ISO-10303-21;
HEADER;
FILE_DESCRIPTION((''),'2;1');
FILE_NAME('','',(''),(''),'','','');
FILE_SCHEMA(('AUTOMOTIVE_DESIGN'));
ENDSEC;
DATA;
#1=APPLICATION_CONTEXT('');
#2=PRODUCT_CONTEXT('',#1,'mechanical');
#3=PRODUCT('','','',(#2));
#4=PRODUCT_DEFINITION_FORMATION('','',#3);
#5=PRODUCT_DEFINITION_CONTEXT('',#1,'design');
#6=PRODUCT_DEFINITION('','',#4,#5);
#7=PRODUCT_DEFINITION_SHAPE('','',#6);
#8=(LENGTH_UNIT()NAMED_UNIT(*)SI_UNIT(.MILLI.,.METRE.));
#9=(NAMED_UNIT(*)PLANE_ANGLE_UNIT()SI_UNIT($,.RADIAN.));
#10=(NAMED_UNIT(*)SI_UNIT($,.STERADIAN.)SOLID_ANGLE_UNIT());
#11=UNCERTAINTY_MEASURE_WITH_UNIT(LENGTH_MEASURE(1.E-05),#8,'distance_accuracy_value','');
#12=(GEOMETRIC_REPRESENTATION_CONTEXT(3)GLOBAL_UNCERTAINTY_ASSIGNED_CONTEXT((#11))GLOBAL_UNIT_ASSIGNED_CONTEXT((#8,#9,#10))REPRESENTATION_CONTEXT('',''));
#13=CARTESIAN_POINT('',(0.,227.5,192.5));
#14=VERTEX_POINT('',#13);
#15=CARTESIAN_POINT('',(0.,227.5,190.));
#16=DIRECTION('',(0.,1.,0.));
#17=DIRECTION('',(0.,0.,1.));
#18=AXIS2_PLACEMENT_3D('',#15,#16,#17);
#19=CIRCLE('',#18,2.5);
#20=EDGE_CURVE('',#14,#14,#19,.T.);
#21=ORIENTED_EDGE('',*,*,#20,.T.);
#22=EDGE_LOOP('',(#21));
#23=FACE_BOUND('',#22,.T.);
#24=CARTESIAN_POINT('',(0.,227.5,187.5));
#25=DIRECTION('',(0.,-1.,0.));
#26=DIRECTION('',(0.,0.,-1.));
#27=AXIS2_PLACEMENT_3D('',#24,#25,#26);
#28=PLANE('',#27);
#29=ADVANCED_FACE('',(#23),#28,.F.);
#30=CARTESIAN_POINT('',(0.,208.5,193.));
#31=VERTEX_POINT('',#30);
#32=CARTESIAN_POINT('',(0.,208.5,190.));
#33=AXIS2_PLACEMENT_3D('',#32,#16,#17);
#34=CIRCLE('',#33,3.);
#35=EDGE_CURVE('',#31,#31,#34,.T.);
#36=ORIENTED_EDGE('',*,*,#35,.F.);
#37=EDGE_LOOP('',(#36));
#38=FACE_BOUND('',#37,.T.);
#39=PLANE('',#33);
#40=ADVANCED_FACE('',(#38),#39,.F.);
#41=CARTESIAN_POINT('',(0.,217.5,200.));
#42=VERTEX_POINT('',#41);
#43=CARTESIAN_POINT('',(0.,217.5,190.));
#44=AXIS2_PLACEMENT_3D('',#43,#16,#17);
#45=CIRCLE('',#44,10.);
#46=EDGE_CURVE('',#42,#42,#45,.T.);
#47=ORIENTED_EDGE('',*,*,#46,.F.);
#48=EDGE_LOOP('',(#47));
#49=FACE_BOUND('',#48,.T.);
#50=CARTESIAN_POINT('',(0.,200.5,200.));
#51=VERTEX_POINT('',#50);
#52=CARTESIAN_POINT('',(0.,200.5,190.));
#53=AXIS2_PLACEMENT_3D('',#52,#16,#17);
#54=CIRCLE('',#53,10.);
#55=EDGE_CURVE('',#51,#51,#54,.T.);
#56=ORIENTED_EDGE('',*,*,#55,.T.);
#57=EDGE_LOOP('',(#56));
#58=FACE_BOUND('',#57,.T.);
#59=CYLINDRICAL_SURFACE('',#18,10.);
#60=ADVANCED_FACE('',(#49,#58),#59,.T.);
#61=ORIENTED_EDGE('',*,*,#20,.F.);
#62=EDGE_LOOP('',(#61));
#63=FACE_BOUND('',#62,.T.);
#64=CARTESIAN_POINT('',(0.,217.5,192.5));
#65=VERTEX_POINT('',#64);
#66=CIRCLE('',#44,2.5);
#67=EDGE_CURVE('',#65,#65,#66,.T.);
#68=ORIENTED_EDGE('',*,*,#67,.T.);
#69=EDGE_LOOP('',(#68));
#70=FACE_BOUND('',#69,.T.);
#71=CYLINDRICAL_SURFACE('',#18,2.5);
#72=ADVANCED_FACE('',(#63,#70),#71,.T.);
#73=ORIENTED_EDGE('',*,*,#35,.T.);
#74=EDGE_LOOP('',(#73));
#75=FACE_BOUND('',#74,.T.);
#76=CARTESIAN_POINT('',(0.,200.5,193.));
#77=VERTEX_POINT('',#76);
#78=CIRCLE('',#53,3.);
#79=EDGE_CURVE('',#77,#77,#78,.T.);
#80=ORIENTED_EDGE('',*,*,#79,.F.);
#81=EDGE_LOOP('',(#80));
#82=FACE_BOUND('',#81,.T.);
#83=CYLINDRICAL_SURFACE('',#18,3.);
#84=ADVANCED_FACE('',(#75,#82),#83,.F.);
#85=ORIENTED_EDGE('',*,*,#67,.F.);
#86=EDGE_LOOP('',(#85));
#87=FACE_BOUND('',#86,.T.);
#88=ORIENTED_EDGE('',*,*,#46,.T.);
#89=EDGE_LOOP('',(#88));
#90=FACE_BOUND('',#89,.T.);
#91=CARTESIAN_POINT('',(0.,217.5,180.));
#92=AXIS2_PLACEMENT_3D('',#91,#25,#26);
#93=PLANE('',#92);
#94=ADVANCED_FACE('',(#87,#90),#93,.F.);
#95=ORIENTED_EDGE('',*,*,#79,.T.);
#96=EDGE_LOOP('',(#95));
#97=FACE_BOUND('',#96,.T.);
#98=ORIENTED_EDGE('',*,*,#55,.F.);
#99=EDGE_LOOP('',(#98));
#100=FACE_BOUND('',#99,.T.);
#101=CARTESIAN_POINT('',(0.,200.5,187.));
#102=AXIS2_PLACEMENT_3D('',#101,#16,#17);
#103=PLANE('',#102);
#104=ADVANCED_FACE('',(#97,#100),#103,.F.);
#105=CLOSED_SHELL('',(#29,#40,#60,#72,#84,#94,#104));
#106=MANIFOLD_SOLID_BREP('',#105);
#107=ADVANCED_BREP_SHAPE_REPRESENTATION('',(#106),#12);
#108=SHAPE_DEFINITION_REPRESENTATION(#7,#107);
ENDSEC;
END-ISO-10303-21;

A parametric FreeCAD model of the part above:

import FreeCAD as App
import Part
import Sketcher
Q = App.Units.Quantity


def add_polygon(sketch, points):
    """Adds a closed chain of lines whose ends are joined by coincident constraints."""
    first, n = sketch.GeometryCount, len(points)
    for a, b in zip(points, points[1:] + points[:1]):
        sketch.addGeometry(Part.LineSegment(App.Vector(*a, 0), App.Vector(*b, 0)), False)
    for i in range(n):
        sketch.addConstraint(Sketcher.Constraint("Coincident", first + i, 2, first + (i + 1) % n, 1))

doc = App.newDocument("Part")
params = doc.addObject("Spreadsheet::Sheet", "Params")
for row, (alias, value) in enumerate([
    ("sketch1_width", "19 mm"),
    ("sketch1_width2", "8 mm"),
    ("sketch1_width3", "17 mm"),
    ("sketch1_height", "3 mm"),
    ("sketch1_height2", "7 mm"),
    ("revolution_angle", "360 deg"),
], start=1):
    params.set(f"A{row}", alias)
    params.set(f"B{row}", "=" + value)
    params.setAlias(f"B{row}", alias)

body = doc.addObject("PartDesign::Body", "Body")

# Sketch on YZ plane
sketch1 = body.newObject("Sketcher::SketchObject", "Sketch")
sketch1.AttachmentSupport = (doc.getObject("YZ_Plane"), [""])
sketch1.MapMode = "FlatFace"
add_polygon(sketch1, [(227.5, 190), (208.5, 190), (208.5, 187), (200.5, 187), (200.5, 180), (217.5, 180), (217.5, 187.5), (227.5, 187.5)])  # lines 0-7
sketch1.addGeometry(Part.LineSegment(App.Vector(227.5, 190, 0), App.Vector(200.5, 190, 0)), True)  # axis
sketch1.addConstraint([
    Sketcher.Constraint("Horizontal", 0),
    Sketcher.Constraint("Vertical", 1),
    Sketcher.Constraint("Horizontal", 2),
    Sketcher.Constraint("Vertical", 3),
    Sketcher.Constraint("Horizontal", 4),
    Sketcher.Constraint("Vertical", 5),
    Sketcher.Constraint("Horizontal", 6),
    Sketcher.Constraint("Vertical", 7),
    Sketcher.Constraint("Horizontal", 8),
    Sketcher.Constraint("Coincident", 8, 1, 7, 2),
    Sketcher.Constraint("Vertical", 3, 2, 8, 2),
    Sketcher.Constraint("DistanceX", 0, 2, 0, 1, Q("19 mm")),
    Sketcher.Constraint("DistanceX", 2, 2, 2, 1, Q("8 mm")),
    Sketcher.Constraint("DistanceX", 4, 1, 4, 2, Q("17 mm")),
    Sketcher.Constraint("DistanceY", 1, 2, 1, 1, Q("3 mm")),
    Sketcher.Constraint("DistanceY", 3, 2, 3, 1, Q("7 mm")),
    Sketcher.Constraint("DistanceY", 5, 1, 5, 2, Q("7.5 mm")),
    Sketcher.Constraint("DistanceY", -1, 1, 0, 2, Q("190 mm")),
    Sketcher.Constraint("DistanceX", -1, 1, 0, 2, Q("208.5 mm")),
])
sketch1.setExpression("Constraints[19]", "Params.sketch1_width")
sketch1.setExpression("Constraints[20]", "Params.sketch1_width2")
sketch1.setExpression("Constraints[21]", "Params.sketch1_width3")
sketch1.setExpression("Constraints[22]", "Params.sketch1_height")
sketch1.setExpression("Constraints[23]", "Params.sketch1_height2")
revolution = body.newObject("PartDesign::Revolution", "Revolution")
revolution.Profile = sketch1
revolution.ReferenceAxis = (sketch1, ["Axis0"])
revolution.setExpression("Angle", "Params.revolution_angle")

doc.recompute()
